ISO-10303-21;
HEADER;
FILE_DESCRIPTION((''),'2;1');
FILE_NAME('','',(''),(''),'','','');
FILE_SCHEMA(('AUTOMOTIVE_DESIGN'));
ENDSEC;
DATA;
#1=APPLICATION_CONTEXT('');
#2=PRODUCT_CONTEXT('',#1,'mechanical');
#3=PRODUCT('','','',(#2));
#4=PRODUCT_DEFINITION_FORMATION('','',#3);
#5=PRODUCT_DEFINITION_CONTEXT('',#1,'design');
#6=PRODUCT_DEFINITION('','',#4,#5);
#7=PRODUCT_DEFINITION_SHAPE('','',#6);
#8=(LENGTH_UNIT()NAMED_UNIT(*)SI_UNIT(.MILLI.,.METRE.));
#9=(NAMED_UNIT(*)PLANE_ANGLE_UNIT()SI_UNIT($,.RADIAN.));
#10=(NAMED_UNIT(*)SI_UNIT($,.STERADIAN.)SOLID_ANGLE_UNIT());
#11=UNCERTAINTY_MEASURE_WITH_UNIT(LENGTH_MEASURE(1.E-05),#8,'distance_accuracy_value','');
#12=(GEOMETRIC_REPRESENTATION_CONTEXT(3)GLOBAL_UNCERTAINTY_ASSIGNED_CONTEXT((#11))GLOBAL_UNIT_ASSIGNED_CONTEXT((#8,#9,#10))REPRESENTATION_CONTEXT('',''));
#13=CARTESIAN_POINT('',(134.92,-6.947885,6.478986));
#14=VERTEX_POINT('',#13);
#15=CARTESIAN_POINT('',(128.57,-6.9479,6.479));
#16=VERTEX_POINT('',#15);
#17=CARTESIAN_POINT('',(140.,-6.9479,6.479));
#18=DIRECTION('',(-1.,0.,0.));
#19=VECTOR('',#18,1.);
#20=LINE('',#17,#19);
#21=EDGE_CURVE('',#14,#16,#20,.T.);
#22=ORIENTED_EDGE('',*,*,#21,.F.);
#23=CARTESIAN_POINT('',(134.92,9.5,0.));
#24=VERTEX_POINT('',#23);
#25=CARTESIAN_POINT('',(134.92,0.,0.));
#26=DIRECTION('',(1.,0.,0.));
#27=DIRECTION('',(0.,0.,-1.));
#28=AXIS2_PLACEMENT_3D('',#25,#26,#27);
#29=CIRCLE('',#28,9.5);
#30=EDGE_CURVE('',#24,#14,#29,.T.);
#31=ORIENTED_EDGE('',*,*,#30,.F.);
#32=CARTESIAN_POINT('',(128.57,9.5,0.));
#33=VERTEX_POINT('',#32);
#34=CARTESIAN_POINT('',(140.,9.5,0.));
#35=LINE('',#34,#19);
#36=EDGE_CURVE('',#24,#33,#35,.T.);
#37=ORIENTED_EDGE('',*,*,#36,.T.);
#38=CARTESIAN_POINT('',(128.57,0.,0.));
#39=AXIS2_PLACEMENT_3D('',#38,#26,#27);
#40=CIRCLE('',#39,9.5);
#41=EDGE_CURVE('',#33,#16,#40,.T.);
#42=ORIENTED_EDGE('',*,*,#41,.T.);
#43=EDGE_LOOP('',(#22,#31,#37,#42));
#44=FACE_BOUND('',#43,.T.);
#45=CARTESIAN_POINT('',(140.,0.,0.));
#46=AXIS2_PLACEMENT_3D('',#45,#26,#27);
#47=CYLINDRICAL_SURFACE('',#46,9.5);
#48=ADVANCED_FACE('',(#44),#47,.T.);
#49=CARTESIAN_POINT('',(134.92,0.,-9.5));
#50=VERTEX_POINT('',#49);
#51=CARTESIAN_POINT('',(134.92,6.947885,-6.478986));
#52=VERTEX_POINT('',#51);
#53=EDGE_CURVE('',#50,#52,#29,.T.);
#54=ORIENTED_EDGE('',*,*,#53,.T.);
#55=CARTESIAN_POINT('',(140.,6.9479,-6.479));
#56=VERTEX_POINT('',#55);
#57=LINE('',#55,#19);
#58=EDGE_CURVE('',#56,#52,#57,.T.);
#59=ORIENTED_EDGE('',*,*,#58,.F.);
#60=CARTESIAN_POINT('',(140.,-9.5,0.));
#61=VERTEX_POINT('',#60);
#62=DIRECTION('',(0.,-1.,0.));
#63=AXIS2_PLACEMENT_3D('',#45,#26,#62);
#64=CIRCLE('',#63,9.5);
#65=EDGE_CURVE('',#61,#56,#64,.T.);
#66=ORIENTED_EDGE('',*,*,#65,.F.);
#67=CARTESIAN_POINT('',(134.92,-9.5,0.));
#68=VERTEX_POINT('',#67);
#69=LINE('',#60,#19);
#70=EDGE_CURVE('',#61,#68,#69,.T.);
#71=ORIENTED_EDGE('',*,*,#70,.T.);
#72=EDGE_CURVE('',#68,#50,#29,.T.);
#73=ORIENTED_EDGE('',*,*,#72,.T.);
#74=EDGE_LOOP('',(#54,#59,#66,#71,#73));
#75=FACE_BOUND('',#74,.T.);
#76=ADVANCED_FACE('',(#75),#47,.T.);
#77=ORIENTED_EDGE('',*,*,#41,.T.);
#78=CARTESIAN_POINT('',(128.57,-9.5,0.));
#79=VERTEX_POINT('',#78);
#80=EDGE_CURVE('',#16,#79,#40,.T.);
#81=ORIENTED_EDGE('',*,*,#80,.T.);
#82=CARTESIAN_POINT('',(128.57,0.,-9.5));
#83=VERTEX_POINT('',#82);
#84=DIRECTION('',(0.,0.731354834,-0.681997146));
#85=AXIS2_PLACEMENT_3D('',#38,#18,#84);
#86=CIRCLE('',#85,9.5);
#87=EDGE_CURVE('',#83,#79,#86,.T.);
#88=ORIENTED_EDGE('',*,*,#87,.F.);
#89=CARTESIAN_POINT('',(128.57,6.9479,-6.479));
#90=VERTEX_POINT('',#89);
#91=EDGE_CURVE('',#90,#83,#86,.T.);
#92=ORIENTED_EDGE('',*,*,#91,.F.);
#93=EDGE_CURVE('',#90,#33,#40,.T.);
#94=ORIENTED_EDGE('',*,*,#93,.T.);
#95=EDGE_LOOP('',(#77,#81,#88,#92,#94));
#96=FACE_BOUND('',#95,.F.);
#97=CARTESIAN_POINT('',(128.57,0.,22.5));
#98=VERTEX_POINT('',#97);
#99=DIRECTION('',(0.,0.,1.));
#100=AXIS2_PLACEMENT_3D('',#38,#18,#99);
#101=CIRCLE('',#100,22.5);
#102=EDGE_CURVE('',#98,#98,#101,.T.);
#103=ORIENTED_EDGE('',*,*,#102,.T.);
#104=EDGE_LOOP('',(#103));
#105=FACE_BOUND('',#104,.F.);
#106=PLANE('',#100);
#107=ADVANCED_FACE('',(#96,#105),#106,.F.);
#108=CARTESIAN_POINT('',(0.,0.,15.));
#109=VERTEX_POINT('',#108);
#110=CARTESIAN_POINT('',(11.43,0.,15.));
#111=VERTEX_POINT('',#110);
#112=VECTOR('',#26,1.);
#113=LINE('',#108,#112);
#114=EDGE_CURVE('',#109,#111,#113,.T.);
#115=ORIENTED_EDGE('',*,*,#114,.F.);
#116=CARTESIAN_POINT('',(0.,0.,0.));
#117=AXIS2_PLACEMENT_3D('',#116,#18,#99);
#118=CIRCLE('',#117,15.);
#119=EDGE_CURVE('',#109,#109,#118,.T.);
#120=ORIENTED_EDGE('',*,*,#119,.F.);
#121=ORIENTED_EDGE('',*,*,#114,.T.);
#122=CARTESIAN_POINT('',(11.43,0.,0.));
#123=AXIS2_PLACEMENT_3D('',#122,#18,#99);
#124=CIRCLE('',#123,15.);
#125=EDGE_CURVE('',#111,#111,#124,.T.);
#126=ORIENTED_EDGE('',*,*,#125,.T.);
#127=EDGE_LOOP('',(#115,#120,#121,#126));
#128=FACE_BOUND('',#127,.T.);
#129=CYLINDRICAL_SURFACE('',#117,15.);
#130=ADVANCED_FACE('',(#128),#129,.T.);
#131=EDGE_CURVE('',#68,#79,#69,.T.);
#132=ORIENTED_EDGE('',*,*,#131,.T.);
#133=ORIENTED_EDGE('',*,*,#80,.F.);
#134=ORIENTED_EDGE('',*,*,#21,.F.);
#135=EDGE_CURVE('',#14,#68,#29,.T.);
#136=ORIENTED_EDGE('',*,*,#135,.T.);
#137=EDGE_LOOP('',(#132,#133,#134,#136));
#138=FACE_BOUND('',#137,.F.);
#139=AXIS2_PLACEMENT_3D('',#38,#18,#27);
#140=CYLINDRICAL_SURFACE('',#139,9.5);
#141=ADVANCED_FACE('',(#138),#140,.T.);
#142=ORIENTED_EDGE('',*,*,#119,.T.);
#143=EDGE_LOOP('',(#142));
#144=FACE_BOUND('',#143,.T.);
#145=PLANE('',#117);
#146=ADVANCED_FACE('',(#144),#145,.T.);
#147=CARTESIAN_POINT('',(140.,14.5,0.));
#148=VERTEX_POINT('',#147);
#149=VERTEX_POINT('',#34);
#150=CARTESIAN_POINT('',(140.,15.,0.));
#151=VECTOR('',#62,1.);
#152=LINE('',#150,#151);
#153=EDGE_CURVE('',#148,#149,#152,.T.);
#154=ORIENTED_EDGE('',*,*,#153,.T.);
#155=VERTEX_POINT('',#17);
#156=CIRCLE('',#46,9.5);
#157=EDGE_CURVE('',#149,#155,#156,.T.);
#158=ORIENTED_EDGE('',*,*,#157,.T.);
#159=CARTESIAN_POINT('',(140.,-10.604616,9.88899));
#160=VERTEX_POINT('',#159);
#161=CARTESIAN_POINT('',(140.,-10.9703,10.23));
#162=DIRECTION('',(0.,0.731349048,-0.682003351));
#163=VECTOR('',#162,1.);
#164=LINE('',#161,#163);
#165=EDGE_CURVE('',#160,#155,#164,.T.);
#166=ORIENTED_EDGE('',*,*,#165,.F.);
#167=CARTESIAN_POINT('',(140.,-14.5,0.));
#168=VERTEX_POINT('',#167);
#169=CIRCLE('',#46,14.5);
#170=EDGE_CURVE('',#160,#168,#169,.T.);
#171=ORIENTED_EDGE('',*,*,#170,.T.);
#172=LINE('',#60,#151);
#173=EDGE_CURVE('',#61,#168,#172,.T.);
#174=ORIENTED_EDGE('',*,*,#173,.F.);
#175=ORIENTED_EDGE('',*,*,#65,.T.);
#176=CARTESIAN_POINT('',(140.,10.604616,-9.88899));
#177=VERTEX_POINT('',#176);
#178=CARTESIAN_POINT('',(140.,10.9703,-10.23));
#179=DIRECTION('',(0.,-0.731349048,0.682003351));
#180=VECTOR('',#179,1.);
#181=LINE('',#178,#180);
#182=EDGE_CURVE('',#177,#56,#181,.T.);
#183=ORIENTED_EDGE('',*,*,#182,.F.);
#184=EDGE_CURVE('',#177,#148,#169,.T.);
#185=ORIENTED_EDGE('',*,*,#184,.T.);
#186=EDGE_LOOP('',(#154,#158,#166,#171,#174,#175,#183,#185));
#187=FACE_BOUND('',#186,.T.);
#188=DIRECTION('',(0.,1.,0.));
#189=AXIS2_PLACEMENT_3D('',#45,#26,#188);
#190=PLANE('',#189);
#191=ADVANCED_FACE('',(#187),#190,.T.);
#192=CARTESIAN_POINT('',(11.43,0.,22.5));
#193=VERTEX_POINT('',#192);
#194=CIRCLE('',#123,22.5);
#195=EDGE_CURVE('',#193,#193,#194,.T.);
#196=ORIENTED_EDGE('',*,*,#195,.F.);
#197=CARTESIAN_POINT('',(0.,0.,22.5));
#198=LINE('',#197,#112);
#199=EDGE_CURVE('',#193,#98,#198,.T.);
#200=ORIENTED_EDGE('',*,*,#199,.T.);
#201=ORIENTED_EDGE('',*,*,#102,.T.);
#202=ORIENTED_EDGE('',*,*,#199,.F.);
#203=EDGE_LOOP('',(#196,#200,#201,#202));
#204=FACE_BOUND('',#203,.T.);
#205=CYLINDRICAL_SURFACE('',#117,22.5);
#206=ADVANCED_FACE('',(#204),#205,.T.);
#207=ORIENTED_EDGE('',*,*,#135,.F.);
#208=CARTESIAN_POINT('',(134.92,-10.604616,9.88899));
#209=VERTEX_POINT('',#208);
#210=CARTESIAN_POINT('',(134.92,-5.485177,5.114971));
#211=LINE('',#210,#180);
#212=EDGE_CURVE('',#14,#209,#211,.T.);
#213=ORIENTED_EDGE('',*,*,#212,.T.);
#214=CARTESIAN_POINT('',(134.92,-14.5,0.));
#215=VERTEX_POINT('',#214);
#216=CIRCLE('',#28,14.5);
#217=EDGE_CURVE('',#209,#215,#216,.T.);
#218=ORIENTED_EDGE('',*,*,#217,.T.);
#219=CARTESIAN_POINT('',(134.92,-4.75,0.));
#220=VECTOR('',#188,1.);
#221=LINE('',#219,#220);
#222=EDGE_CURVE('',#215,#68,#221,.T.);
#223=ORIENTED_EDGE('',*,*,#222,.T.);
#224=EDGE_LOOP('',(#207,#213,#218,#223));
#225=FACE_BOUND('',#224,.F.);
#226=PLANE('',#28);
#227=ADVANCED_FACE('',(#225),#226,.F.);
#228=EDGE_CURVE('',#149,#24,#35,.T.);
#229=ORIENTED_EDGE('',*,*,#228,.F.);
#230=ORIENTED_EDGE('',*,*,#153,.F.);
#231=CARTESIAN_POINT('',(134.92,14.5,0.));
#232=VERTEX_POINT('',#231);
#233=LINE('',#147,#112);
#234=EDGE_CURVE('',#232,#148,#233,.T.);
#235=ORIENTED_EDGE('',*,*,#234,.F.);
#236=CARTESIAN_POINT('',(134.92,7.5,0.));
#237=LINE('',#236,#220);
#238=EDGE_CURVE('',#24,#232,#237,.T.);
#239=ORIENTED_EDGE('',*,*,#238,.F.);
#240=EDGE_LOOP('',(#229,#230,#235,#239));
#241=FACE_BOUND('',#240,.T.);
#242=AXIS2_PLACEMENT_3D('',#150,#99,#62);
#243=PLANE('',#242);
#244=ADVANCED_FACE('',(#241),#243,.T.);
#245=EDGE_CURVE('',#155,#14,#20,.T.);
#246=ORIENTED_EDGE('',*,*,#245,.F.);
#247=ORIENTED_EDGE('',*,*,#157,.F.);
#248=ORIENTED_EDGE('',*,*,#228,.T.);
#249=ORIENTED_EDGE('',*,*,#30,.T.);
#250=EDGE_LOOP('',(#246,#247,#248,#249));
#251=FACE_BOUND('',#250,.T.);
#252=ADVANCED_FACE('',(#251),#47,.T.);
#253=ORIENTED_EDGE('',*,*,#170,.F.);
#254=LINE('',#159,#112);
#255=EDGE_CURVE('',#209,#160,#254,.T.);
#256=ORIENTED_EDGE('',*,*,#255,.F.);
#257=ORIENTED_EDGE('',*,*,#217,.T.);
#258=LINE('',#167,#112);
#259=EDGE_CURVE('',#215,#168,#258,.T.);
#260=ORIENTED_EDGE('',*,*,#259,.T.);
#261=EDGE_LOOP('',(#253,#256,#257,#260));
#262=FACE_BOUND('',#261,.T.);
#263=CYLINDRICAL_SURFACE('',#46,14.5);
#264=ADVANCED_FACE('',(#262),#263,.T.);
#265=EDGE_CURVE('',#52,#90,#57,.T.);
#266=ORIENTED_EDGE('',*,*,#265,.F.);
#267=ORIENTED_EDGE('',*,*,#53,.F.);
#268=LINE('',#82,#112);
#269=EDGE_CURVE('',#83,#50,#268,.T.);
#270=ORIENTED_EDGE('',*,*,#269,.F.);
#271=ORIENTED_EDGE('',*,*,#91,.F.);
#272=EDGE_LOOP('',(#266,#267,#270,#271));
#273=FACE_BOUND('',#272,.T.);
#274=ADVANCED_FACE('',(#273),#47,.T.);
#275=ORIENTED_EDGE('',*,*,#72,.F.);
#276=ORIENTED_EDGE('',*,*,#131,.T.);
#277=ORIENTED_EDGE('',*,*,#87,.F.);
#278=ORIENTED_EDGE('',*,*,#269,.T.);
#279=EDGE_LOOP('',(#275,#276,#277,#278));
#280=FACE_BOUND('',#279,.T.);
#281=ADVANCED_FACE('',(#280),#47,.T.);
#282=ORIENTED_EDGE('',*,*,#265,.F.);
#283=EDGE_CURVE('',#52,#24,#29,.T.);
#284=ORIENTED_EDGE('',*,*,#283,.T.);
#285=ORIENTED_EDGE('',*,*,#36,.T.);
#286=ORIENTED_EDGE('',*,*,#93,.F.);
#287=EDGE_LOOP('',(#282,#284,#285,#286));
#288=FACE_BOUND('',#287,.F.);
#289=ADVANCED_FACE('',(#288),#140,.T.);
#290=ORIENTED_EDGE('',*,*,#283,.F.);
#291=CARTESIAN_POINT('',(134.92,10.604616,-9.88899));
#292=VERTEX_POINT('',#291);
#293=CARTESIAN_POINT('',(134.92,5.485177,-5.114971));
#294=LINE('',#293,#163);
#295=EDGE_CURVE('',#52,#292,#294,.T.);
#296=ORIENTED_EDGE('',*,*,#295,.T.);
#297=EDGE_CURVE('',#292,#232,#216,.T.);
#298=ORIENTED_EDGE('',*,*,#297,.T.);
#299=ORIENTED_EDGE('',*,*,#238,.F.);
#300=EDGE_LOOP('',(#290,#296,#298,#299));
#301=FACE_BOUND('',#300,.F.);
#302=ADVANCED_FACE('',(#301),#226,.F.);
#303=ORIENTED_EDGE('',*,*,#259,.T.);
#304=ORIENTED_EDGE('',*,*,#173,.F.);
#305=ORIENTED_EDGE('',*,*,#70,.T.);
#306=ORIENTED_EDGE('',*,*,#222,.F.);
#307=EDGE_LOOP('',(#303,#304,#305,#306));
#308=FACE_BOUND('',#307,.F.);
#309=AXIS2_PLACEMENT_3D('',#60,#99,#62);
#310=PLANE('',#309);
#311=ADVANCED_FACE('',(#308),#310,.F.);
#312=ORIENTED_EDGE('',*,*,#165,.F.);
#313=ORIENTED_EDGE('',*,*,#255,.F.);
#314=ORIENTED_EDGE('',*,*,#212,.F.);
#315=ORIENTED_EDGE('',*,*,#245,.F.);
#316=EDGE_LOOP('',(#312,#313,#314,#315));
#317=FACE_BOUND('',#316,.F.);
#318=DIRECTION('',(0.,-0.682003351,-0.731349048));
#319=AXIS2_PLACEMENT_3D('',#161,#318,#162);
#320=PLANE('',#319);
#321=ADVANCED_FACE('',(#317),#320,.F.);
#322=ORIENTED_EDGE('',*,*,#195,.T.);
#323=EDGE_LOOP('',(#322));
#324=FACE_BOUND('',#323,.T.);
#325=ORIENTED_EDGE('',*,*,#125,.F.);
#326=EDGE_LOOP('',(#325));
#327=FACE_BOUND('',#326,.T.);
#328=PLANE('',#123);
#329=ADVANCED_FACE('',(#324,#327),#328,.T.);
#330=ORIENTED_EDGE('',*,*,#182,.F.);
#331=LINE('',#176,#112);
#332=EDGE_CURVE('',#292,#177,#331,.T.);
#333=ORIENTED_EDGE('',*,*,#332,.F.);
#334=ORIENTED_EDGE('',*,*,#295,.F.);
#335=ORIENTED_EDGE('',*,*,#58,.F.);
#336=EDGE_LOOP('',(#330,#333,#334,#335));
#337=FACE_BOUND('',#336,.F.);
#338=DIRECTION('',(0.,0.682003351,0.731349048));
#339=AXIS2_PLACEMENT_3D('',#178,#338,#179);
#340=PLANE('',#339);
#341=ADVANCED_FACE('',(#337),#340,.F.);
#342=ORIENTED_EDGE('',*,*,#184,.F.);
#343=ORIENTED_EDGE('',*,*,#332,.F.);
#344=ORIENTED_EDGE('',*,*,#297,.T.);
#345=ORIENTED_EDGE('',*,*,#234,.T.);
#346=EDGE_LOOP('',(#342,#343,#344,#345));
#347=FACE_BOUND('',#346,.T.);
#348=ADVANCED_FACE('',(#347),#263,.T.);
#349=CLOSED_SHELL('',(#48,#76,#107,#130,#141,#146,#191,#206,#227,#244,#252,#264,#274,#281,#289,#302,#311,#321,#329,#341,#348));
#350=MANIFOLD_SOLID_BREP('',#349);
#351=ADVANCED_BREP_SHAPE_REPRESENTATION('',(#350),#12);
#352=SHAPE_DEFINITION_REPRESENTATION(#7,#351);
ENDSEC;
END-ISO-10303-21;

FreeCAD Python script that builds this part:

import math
import FreeCAD as App
import Part
import Sketcher
Q = App.Units.Quantity

doc = App.newDocument("Part")
body = doc.addObject("PartDesign::Body", "Body")

# Sketch on YZ plane
sketch1 = doc.addObject("Sketcher::SketchObject", "Sketch")
body.addObject(sketch1)
sketch1.AttachmentSupport = (doc.YZ_Plane, [""])
sketch1.MapMode = "FlatFace"
sketch1.addGeometry(Part.Circle(App.Vector(0, 0, 0), App.Vector(0, 0, 1), 15), False)
sketch1.addConstraint([
    Sketcher.Constraint("Coincident", 0, 3, -1, 1),
    Sketcher.Constraint("Diameter", 0, Q("30 mm")),
])
pad1 = doc.addObject("PartDesign::Pad", "Pad")
body.addObject(pad1)
pad1.Profile = sketch1
pad1.Length = 140

# Sketch on YZ plane
sketch2 = doc.addObject("Sketcher::SketchObject", "Sketch001")
body.addObject(sketch2)
sketch2.AttachmentSupport = (doc.YZ_Plane, [""])
sketch2.MapMode = "FlatFace"
sketch2.AttachmentOffset = App.Placement(App.Vector(0, 0, 140), App.Rotation())
sketch2.addGeometry([
    Part.ArcOfCircle(Part.Circle(App.Vector(0, 0, 0), App.Vector(0, 0, 1), 10), math.radians(180), math.radians(317)),  # 0
    Part.LineSegment(App.Vector(-10, 0, 0), App.Vector(-15, 0, 0)),  # 1
    Part.ArcOfCircle(Part.Circle(App.Vector(0, 0, 0), App.Vector(0, 0, 1), 15), math.radians(180), math.radians(317)),  # 2
    Part.LineSegment(App.Vector(11, -10, 0), App.Vector(7, -6, 0)),  # 3
    Part.ArcOfCircle(Part.Circle(App.Vector(0, 0, 0), App.Vector(0, 0, 1), 10), math.radians(0), math.radians(137)),  # 4
    Part.LineSegment(App.Vector(10, 0, 0), App.Vector(15, 0, 0)),  # 5
    Part.ArcOfCircle(Part.Circle(App.Vector(0, 0, 0), App.Vector(0, 0, 1), 15), math.radians(0), math.radians(137)),  # 6
    Part.LineSegment(App.Vector(-11, 10, 0), App.Vector(-7, 6, 0)),  # 7
], False)
sketch2.addConstraint([
    Sketcher.Constraint("Coincident", 0, 1, 1, 1),
    Sketcher.Constraint("Coincident", 1, 2, 2, 1),
    Sketcher.Constraint("Coincident", 2, 2, 3, 1),
    Sketcher.Constraint("Coincident", 3, 2, 0, 2),
    Sketcher.Constraint("Coincident", 4, 1, 5, 1),
    Sketcher.Constraint("Coincident", 5, 2, 6, 1),
    Sketcher.Constraint("Coincident", 6, 2, 7, 1),
    Sketcher.Constraint("Coincident", 7, 2, 4, 2),
    Sketcher.Constraint("Horizontal", 1),
    Sketcher.Constraint("Horizontal", 5),
    Sketcher.Constraint("Coincident", 0, 3, -1, 1),
    Sketcher.Constraint("Coincident", 2, 3, -1, 1),
    Sketcher.Constraint("Coincident", 4, 3, -1, 1),
    Sketcher.Constraint("Coincident", 6, 3, -1, 1),
    Sketcher.Constraint("Equal", 0, 4),
    Sketcher.Constraint("Equal", 2, 6),
    Sketcher.Constraint("PointOnObject", 0, 1, -1),
    Sketcher.Constraint("PointOnObject", 4, 1, -1),
    Sketcher.Constraint("Parallel", 3, 7),
    Sketcher.Constraint("Radius", 0, Q("9.5 mm")),
    Sketcher.Constraint("Angle", 7, Q("-43.0004 deg")),
    Sketcher.Constraint("Radius", 2, Q("15 mm")),
    Sketcher.Constraint("DistanceY", 2, 2, -1, 1, Q("10.23 mm")),
    Sketcher.Constraint("DistanceY", -1, 1, 6, 2, Q("10.23 mm")),
])
pocket1 = doc.addObject("PartDesign::Pocket", "Pocket")
body.addObject(pocket1)
pocket1.Profile = sketch2
pocket1.Length = 11.43

# Sketch on YZ plane
sketch3 = doc.addObject("Sketcher::SketchObject", "Sketch002")
body.addObject(sketch3)
sketch3.AttachmentSupport = (doc.YZ_Plane, [""])
sketch3.MapMode = "FlatFace"
sketch3.AttachmentOffset = App.Placement(App.Vector(0, 0, 128.57), App.Rotation())
sketch3.addGeometry([
    Part.Circle(App.Vector(0, 0, 0), App.Vector(0, 0, 1), 15),
    Part.Circle(App.Vector(0, 0, 0), App.Vector(0, 0, 1), 10),
], False)
sketch3.addConstraint([
    Sketcher.Constraint("Coincident", 0, 3, -1, 1),
    Sketcher.Constraint("Coincident", 1, 3, -1, 1),
    Sketcher.Constraint("Diameter", 0, Q("30 mm")),
    Sketcher.Constraint("Diameter", 1, Q("19 mm")),
])
pocket2 = doc.addObject("PartDesign::Pocket", "Pocket001")
body.addObject(pocket2)
pocket2.Profile = sketch3
pocket2.Length = 6.35
pocket2.Reversed = True

# Sketch on YZ plane
sketch4 = doc.addObject("Sketcher::SketchObject", "Sketch003")
body.addObject(sketch4)
sketch4.AttachmentSupport = (doc.YZ_Plane, [""])
sketch4.MapMode = "FlatFace"
sketch4.addGeometry(Part.Circle(App.Vector(0, 0, 0), App.Vector(0, 0, 1), 22), False)
sketch4.addConstraint([
    Sketcher.Constraint("Coincident", 0, 3, -1, 1),
    Sketcher.Constraint("Diameter", 0, Q("45 mm")),
])
pad2 = doc.addObject("PartDesign::Pad", "Pad001")
body.addObject(pad2)
pad2.Profile = sketch4
pad2.Length = 128.57

# Sketch on YZ plane
sketch5 = doc.addObject("Sketcher::SketchObject", "Sketch004")
body.addObject(sketch5)
sketch5.AttachmentSupport = (doc.YZ_Plane, [""])
sketch5.MapMode = "FlatFace"
sketch5.addGeometry([
    Part.Circle(App.Vector(0, 0, 0), App.Vector(0, 0, 1), 22),
    Part.Circle(App.Vector(0, 0, 0), App.Vector(0, 0, 1), 15),
], False)
sketch5.addConstraint([
    Sketcher.Constraint("Coincident", 0, 3, -1, 1),
    Sketcher.Constraint("Coincident", 1, 3, -1, 1),
    Sketcher.Constraint("Diameter", 1, Q("30 mm")),
    Sketcher.Constraint("Diameter", 0, Q("45 mm")),
])
pocket3 = doc.addObject("PartDesign::Pocket", "Pocket002")
body.addObject(pocket3)
pocket3.Profile = sketch5
pocket3.Length = 11.43
pocket3.Reversed = True

# Sketch on YZ plane
sketch6 = doc.addObject("Sketcher::SketchObject", "Sketch005")
body.addObject(sketch6)
sketch6.AttachmentSupport = (doc.YZ_Plane, [""])
sketch6.MapMode = "FlatFace"
sketch6.AttachmentOffset = App.Placement(App.Vector(0, 0, 140), App.Rotation())
sketch6.addGeometry([
    Part.ArcOfCircle(Part.Circle(App.Vector(0, 0, 0), App.Vector(0, 0, 1), 15), math.radians(0), math.radians(317)),
    Part.ArcOfCircle(Part.Circle(App.Vector(0, 0, 0), App.Vector(0, 0, 1), 15), math.radians(-43), math.radians(0)),
    Part.Circle(App.Vector(0, 0, 0), App.Vector(0, 0, 1), 14),
], False)
sketch6.addConstraint([
    Sketcher.Constraint("Tangent", 0, 1, 1, 2),
    Sketcher.Constraint("Coincident", 1, 1, 0, 2),
    Sketcher.Constraint("Coincident", 0, 3, -1, 1),
    Sketcher.Constraint("Coincident", 2, 3, -1, 1),
    Sketcher.Constraint("PointOnObject", 0, 1, -1),
    Sketcher.Constraint("Diameter", 2, Q("29 mm")),
    Sketcher.Constraint("Radius", 0, Q("15 mm")),
    Sketcher.Constraint("DistanceY", 1, 1, -1, 1, Q("10.23 mm")),
])
pocket4 = doc.addObject("PartDesign::Pocket", "Pocket003")
body.addObject(pocket4)
pocket4.Profile = sketch6
pocket4.Length = 5.08

doc.recompute()
